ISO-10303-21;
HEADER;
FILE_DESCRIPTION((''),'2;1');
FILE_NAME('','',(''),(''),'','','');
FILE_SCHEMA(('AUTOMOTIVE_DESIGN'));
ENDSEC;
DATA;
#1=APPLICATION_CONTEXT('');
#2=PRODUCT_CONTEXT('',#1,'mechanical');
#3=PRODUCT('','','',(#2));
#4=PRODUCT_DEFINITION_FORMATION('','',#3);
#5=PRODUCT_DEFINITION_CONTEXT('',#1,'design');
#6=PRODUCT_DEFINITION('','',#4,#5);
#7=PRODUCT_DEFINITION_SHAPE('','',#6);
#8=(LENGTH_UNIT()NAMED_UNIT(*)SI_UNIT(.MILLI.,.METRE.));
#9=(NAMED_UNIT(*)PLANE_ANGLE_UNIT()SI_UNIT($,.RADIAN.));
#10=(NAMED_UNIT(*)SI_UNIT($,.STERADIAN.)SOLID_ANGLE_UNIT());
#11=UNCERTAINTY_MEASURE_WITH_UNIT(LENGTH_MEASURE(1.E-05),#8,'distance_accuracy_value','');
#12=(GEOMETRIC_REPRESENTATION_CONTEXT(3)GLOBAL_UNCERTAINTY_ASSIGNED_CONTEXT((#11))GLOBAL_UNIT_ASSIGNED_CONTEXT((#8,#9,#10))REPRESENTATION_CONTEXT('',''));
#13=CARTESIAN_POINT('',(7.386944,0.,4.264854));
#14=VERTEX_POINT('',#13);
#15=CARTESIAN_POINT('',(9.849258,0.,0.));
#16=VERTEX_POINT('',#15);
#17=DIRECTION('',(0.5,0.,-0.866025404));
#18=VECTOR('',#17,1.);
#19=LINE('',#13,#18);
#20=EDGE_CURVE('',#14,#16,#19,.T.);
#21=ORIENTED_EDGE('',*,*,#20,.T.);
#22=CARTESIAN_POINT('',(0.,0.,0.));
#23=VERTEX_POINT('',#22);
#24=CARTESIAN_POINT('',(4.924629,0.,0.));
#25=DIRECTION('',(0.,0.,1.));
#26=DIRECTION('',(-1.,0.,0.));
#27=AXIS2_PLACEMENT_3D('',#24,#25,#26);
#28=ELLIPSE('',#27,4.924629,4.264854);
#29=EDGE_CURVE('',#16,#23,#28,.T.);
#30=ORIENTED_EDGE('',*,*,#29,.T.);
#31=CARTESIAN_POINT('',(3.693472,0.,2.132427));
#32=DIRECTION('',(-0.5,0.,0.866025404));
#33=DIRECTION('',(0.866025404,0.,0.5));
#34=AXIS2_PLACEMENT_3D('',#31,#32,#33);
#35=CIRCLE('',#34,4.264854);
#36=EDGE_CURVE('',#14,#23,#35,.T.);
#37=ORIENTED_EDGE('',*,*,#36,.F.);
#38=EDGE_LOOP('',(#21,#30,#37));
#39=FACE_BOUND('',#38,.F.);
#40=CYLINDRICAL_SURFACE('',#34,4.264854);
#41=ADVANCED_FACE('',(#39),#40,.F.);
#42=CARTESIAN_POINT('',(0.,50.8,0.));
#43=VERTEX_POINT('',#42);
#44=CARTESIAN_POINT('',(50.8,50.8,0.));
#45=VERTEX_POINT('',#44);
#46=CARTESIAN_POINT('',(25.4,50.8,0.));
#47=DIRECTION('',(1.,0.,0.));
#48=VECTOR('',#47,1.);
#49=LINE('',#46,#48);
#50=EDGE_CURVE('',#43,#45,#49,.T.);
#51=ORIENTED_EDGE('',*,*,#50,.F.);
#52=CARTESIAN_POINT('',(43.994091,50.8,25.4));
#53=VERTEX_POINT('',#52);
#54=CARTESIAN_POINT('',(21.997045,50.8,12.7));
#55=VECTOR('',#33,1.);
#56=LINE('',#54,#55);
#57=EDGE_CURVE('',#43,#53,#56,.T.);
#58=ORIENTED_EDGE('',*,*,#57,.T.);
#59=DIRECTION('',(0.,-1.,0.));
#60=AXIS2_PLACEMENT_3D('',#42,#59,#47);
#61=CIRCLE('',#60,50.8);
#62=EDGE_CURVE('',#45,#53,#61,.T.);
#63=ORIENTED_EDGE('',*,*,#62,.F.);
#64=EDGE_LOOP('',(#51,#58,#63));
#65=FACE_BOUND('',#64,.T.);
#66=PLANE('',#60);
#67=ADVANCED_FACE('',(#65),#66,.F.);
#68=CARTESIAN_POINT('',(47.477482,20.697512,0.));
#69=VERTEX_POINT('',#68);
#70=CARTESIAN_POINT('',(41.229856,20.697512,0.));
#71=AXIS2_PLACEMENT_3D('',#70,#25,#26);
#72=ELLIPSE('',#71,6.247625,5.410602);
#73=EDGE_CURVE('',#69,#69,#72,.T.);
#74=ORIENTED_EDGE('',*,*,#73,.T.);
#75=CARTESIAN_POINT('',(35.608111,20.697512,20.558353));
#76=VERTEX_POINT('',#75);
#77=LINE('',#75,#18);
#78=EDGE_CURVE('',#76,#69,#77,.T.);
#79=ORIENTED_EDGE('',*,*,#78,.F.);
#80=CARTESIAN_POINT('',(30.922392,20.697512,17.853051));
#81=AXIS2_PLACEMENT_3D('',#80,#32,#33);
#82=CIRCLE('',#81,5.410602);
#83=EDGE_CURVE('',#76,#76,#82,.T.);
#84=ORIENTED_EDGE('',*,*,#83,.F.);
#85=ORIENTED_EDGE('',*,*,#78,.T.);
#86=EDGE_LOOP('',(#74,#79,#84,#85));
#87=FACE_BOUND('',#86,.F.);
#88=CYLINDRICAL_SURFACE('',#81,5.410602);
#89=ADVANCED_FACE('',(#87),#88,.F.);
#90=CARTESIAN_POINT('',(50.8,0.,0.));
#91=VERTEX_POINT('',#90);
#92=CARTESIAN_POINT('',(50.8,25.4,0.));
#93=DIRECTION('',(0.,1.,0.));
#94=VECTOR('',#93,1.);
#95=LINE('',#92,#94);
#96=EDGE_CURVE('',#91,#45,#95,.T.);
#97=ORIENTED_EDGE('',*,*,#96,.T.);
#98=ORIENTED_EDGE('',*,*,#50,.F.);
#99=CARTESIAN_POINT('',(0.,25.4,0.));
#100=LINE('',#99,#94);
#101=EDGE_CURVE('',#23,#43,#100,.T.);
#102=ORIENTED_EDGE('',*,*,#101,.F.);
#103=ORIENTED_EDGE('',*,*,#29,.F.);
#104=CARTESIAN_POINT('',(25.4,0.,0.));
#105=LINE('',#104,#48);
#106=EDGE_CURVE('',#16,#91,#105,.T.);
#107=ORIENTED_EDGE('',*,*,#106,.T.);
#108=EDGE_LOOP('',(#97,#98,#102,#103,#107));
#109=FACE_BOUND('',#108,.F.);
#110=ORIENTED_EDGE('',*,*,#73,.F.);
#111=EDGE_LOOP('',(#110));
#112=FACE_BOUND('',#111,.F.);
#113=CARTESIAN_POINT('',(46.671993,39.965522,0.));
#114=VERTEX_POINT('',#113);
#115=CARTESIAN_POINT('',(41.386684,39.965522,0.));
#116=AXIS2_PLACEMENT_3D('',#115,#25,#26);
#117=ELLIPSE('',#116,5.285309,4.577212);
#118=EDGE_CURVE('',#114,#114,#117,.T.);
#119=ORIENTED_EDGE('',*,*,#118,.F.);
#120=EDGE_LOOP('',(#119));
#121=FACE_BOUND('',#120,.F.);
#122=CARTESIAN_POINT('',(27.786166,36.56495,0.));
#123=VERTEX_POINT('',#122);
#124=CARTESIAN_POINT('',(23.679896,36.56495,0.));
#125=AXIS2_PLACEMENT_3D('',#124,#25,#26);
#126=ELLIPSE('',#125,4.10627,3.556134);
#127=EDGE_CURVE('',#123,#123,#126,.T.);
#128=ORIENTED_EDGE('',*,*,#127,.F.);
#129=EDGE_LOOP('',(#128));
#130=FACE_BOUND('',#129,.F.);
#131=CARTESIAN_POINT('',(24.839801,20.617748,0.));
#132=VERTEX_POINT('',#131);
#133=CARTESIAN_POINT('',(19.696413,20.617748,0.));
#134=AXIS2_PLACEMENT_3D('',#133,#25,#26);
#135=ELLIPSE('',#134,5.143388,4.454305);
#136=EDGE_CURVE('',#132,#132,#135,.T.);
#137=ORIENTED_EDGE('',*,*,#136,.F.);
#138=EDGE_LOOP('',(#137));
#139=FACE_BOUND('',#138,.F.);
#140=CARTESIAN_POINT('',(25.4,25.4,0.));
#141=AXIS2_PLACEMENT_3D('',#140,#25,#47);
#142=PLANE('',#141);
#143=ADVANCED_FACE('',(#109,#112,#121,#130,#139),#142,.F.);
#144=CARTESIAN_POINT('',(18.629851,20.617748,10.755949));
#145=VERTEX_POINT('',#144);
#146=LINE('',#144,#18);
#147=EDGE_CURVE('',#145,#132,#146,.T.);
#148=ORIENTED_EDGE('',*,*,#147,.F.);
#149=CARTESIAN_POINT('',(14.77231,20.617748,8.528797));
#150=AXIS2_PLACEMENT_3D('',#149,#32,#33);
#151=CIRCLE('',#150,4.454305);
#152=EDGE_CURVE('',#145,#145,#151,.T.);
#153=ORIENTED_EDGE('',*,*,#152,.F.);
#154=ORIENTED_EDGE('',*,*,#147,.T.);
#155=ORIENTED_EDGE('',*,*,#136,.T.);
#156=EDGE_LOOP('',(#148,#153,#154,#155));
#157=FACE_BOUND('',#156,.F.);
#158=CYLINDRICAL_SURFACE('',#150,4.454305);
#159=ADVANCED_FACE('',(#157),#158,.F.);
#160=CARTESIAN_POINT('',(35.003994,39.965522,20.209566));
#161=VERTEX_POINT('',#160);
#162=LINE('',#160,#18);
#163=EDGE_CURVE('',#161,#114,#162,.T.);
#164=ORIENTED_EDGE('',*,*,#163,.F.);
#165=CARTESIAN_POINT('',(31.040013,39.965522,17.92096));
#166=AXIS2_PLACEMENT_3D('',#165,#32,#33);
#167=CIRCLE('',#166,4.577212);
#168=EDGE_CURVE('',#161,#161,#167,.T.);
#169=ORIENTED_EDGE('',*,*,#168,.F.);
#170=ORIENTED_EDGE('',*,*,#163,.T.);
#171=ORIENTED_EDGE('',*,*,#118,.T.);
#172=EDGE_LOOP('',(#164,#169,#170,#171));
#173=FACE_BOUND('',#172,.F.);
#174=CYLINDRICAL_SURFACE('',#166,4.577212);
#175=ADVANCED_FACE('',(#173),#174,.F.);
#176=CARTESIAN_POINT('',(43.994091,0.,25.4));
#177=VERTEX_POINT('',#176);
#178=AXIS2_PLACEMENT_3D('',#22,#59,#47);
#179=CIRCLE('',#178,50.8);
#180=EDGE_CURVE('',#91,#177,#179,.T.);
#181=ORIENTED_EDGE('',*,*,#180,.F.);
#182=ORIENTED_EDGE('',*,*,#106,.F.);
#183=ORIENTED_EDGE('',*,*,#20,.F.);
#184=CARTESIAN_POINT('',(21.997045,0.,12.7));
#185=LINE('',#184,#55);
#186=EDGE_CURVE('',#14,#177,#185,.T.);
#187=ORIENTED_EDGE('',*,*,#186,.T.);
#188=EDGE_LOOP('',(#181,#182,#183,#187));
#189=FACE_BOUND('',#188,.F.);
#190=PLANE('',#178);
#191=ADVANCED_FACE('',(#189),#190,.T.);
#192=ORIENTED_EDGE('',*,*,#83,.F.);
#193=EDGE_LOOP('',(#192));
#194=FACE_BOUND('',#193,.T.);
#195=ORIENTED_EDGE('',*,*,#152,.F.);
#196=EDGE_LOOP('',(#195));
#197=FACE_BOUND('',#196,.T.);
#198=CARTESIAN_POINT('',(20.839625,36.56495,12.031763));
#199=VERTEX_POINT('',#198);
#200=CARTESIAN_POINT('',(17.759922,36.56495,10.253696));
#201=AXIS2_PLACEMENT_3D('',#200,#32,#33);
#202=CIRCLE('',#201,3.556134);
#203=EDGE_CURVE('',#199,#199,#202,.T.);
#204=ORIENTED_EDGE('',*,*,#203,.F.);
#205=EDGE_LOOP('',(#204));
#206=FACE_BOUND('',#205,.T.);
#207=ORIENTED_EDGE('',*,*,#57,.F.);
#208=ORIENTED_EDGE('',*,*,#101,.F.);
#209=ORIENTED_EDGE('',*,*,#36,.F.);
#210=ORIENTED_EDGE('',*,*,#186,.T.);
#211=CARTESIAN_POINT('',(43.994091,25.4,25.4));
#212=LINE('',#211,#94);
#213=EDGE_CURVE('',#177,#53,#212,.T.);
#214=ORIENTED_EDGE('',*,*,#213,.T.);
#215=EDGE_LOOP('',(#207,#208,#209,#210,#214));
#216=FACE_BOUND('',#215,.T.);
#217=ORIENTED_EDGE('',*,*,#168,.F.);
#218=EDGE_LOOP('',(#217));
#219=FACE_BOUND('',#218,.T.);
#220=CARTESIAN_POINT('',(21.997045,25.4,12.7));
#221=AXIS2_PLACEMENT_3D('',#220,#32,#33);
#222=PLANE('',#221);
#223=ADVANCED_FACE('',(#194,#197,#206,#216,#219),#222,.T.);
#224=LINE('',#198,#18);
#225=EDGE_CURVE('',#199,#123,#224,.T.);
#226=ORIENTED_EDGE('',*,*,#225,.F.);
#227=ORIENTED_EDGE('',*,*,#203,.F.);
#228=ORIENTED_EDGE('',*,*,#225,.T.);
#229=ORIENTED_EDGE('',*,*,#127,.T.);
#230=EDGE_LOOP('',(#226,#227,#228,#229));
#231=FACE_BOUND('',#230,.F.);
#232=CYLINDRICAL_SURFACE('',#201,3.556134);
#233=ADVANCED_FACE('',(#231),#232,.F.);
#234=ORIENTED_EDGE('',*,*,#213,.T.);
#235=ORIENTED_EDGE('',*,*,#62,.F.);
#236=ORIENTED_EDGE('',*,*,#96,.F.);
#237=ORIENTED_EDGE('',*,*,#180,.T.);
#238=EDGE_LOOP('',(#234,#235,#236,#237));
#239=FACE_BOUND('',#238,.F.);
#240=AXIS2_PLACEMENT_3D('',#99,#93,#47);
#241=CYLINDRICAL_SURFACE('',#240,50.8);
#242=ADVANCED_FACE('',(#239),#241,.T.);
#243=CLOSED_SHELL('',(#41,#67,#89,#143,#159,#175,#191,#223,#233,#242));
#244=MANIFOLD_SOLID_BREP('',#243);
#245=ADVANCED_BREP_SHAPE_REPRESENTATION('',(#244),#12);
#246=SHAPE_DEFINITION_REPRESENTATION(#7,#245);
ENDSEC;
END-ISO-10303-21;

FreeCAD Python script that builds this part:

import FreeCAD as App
import Part
import Sketcher

V = App.Vector
Q = App.Units.Quantity


def add_polygon(sketch, points):
    """Adds a closed chain of lines whose ends are joined by coincident constraints."""
    first, n = sketch.GeometryCount, len(points)
    for a, b in zip(points, points[1:] + points[:1]):
        sketch.addGeometry(Part.LineSegment(App.Vector(*a, 0), App.Vector(*b, 0)), False)
    for i in range(n):
        sketch.addConstraint(Sketcher.Constraint("Coincident", first + i, 2, first + (i + 1) % n, 1))

doc = App.newDocument("Part")
body = doc.addObject("PartDesign::Body", "Body")

# Sketch on XY plane
sketch1 = body.newObject("Sketcher::SketchObject", "Sketch")
sketch1.AttachmentSupport = (doc.getObject("XY_Plane"), [""])
sketch1.MapMode = "FlatFace"
add_polygon(sketch1, [(0, 51), (0, 0), (51, 0), (51, 51)])  # lines 0-3
sketch1.addConstraint(Sketcher.Constraint("Vertical", 0))
sketch1.addConstraint(Sketcher.Constraint("Horizontal", 1))
sketch1.addConstraint(Sketcher.Constraint("Vertical", 2))
sketch1.addConstraint(Sketcher.Constraint("Horizontal", 3))
sketch1.addConstraint(Sketcher.Constraint("Coincident", 0, 2, -1, 1))
sketch1.addConstraint(Sketcher.Constraint("Equal", 3, 0))
sketch1.addConstraint(Sketcher.Constraint("DistanceX", 1, 1, 1, 2, Q("2 in")))
revolution = body.newObject("PartDesign::Revolution", "Revolution")
revolution.Profile = sketch1
revolution.ReferenceAxis = (sketch1, ["V_Axis"])
revolution.Angle = 30
revolution.Reversed = True

# Sketch on an angled plane
sketch2 = body.newObject("Sketcher::SketchObject", "Sketch001")
sketch2.Placement = App.Placement(V(0, 0, 0), App.Rotation(V(0.866025404, 0, 0.5), V(0, 1, 0), V(-0.5, 0, 0.866025404), "ZXY"))
sketch2.addGeometry(Part.Circle(V(17.1, 20.6, 0), V(0, 0, 1), 4.5), False)
sketch2.addGeometry(Part.Circle(V(35.7, 20.7, 0), V(0, 0, 1), 5.4), False)
sketch2.addGeometry(Part.Circle(V(20.5, 36.6, 0), V(0, 0, 1), 3.6), False)
sketch2.addGeometry(Part.Circle(V(4.3, 0, 0), V(0, 0, 1), 4.3), False)
sketch2.addGeometry(Part.Circle(V(35.8, 40, 0), V(0, 0, 1), 4.6), False)
sketch2.addConstraint(Sketcher.Constraint("PointOnObject", 3, 3, -1))
sketch2.addConstraint(Sketcher.Constraint("Diameter", 0, 8.90861))
sketch2.addConstraint(Sketcher.Constraint("Diameter", 2, 7.112268))
sketch2.addConstraint(Sketcher.Constraint("Diameter", 1, 10.821205))
sketch2.addConstraint(Sketcher.Constraint("Diameter", 3, 8.529708))
sketch2.addConstraint(Sketcher.Constraint("Diameter", 4, 9.154423))
sketch2.addConstraint(Sketcher.Constraint("DistanceY", -1, 1, 1, 3, 20.697512))
sketch2.addConstraint(Sketcher.Constraint("DistanceX", -1, 1, 2, 3, 20.507392))
sketch2.addConstraint(Sketcher.Constraint("DistanceY", -1, 1, 2, 3, 36.56495))
sketch2.addConstraint(Sketcher.Constraint("DistanceX", -1, 1, 4, 3, 35.841919))
sketch2.addConstraint(Sketcher.Constraint("DistanceY", -1, 1, 4, 3, 39.965522))
sketch2.addConstraint(Sketcher.Constraint("DistanceX", 0, 3, 1, 3, 18.648509))
sketch2.addConstraint(Sketcher.Constraint("DistanceX", 2, 3, 1, 3, 15.198711))
sketch2.addConstraint(Sketcher.Constraint("DistanceX", 3, 3, 0, 3, 12.79274))
sketch2.addConstraint(Sketcher.Constraint("DistanceY", -1, 1, 0, 3, 20.617748))
pocket1 = body.newObject("PartDesign::Pocket", "Pocket")
pocket1.Profile = sketch2
pocket1.Length = Q("1 in")

doc.recompute()
